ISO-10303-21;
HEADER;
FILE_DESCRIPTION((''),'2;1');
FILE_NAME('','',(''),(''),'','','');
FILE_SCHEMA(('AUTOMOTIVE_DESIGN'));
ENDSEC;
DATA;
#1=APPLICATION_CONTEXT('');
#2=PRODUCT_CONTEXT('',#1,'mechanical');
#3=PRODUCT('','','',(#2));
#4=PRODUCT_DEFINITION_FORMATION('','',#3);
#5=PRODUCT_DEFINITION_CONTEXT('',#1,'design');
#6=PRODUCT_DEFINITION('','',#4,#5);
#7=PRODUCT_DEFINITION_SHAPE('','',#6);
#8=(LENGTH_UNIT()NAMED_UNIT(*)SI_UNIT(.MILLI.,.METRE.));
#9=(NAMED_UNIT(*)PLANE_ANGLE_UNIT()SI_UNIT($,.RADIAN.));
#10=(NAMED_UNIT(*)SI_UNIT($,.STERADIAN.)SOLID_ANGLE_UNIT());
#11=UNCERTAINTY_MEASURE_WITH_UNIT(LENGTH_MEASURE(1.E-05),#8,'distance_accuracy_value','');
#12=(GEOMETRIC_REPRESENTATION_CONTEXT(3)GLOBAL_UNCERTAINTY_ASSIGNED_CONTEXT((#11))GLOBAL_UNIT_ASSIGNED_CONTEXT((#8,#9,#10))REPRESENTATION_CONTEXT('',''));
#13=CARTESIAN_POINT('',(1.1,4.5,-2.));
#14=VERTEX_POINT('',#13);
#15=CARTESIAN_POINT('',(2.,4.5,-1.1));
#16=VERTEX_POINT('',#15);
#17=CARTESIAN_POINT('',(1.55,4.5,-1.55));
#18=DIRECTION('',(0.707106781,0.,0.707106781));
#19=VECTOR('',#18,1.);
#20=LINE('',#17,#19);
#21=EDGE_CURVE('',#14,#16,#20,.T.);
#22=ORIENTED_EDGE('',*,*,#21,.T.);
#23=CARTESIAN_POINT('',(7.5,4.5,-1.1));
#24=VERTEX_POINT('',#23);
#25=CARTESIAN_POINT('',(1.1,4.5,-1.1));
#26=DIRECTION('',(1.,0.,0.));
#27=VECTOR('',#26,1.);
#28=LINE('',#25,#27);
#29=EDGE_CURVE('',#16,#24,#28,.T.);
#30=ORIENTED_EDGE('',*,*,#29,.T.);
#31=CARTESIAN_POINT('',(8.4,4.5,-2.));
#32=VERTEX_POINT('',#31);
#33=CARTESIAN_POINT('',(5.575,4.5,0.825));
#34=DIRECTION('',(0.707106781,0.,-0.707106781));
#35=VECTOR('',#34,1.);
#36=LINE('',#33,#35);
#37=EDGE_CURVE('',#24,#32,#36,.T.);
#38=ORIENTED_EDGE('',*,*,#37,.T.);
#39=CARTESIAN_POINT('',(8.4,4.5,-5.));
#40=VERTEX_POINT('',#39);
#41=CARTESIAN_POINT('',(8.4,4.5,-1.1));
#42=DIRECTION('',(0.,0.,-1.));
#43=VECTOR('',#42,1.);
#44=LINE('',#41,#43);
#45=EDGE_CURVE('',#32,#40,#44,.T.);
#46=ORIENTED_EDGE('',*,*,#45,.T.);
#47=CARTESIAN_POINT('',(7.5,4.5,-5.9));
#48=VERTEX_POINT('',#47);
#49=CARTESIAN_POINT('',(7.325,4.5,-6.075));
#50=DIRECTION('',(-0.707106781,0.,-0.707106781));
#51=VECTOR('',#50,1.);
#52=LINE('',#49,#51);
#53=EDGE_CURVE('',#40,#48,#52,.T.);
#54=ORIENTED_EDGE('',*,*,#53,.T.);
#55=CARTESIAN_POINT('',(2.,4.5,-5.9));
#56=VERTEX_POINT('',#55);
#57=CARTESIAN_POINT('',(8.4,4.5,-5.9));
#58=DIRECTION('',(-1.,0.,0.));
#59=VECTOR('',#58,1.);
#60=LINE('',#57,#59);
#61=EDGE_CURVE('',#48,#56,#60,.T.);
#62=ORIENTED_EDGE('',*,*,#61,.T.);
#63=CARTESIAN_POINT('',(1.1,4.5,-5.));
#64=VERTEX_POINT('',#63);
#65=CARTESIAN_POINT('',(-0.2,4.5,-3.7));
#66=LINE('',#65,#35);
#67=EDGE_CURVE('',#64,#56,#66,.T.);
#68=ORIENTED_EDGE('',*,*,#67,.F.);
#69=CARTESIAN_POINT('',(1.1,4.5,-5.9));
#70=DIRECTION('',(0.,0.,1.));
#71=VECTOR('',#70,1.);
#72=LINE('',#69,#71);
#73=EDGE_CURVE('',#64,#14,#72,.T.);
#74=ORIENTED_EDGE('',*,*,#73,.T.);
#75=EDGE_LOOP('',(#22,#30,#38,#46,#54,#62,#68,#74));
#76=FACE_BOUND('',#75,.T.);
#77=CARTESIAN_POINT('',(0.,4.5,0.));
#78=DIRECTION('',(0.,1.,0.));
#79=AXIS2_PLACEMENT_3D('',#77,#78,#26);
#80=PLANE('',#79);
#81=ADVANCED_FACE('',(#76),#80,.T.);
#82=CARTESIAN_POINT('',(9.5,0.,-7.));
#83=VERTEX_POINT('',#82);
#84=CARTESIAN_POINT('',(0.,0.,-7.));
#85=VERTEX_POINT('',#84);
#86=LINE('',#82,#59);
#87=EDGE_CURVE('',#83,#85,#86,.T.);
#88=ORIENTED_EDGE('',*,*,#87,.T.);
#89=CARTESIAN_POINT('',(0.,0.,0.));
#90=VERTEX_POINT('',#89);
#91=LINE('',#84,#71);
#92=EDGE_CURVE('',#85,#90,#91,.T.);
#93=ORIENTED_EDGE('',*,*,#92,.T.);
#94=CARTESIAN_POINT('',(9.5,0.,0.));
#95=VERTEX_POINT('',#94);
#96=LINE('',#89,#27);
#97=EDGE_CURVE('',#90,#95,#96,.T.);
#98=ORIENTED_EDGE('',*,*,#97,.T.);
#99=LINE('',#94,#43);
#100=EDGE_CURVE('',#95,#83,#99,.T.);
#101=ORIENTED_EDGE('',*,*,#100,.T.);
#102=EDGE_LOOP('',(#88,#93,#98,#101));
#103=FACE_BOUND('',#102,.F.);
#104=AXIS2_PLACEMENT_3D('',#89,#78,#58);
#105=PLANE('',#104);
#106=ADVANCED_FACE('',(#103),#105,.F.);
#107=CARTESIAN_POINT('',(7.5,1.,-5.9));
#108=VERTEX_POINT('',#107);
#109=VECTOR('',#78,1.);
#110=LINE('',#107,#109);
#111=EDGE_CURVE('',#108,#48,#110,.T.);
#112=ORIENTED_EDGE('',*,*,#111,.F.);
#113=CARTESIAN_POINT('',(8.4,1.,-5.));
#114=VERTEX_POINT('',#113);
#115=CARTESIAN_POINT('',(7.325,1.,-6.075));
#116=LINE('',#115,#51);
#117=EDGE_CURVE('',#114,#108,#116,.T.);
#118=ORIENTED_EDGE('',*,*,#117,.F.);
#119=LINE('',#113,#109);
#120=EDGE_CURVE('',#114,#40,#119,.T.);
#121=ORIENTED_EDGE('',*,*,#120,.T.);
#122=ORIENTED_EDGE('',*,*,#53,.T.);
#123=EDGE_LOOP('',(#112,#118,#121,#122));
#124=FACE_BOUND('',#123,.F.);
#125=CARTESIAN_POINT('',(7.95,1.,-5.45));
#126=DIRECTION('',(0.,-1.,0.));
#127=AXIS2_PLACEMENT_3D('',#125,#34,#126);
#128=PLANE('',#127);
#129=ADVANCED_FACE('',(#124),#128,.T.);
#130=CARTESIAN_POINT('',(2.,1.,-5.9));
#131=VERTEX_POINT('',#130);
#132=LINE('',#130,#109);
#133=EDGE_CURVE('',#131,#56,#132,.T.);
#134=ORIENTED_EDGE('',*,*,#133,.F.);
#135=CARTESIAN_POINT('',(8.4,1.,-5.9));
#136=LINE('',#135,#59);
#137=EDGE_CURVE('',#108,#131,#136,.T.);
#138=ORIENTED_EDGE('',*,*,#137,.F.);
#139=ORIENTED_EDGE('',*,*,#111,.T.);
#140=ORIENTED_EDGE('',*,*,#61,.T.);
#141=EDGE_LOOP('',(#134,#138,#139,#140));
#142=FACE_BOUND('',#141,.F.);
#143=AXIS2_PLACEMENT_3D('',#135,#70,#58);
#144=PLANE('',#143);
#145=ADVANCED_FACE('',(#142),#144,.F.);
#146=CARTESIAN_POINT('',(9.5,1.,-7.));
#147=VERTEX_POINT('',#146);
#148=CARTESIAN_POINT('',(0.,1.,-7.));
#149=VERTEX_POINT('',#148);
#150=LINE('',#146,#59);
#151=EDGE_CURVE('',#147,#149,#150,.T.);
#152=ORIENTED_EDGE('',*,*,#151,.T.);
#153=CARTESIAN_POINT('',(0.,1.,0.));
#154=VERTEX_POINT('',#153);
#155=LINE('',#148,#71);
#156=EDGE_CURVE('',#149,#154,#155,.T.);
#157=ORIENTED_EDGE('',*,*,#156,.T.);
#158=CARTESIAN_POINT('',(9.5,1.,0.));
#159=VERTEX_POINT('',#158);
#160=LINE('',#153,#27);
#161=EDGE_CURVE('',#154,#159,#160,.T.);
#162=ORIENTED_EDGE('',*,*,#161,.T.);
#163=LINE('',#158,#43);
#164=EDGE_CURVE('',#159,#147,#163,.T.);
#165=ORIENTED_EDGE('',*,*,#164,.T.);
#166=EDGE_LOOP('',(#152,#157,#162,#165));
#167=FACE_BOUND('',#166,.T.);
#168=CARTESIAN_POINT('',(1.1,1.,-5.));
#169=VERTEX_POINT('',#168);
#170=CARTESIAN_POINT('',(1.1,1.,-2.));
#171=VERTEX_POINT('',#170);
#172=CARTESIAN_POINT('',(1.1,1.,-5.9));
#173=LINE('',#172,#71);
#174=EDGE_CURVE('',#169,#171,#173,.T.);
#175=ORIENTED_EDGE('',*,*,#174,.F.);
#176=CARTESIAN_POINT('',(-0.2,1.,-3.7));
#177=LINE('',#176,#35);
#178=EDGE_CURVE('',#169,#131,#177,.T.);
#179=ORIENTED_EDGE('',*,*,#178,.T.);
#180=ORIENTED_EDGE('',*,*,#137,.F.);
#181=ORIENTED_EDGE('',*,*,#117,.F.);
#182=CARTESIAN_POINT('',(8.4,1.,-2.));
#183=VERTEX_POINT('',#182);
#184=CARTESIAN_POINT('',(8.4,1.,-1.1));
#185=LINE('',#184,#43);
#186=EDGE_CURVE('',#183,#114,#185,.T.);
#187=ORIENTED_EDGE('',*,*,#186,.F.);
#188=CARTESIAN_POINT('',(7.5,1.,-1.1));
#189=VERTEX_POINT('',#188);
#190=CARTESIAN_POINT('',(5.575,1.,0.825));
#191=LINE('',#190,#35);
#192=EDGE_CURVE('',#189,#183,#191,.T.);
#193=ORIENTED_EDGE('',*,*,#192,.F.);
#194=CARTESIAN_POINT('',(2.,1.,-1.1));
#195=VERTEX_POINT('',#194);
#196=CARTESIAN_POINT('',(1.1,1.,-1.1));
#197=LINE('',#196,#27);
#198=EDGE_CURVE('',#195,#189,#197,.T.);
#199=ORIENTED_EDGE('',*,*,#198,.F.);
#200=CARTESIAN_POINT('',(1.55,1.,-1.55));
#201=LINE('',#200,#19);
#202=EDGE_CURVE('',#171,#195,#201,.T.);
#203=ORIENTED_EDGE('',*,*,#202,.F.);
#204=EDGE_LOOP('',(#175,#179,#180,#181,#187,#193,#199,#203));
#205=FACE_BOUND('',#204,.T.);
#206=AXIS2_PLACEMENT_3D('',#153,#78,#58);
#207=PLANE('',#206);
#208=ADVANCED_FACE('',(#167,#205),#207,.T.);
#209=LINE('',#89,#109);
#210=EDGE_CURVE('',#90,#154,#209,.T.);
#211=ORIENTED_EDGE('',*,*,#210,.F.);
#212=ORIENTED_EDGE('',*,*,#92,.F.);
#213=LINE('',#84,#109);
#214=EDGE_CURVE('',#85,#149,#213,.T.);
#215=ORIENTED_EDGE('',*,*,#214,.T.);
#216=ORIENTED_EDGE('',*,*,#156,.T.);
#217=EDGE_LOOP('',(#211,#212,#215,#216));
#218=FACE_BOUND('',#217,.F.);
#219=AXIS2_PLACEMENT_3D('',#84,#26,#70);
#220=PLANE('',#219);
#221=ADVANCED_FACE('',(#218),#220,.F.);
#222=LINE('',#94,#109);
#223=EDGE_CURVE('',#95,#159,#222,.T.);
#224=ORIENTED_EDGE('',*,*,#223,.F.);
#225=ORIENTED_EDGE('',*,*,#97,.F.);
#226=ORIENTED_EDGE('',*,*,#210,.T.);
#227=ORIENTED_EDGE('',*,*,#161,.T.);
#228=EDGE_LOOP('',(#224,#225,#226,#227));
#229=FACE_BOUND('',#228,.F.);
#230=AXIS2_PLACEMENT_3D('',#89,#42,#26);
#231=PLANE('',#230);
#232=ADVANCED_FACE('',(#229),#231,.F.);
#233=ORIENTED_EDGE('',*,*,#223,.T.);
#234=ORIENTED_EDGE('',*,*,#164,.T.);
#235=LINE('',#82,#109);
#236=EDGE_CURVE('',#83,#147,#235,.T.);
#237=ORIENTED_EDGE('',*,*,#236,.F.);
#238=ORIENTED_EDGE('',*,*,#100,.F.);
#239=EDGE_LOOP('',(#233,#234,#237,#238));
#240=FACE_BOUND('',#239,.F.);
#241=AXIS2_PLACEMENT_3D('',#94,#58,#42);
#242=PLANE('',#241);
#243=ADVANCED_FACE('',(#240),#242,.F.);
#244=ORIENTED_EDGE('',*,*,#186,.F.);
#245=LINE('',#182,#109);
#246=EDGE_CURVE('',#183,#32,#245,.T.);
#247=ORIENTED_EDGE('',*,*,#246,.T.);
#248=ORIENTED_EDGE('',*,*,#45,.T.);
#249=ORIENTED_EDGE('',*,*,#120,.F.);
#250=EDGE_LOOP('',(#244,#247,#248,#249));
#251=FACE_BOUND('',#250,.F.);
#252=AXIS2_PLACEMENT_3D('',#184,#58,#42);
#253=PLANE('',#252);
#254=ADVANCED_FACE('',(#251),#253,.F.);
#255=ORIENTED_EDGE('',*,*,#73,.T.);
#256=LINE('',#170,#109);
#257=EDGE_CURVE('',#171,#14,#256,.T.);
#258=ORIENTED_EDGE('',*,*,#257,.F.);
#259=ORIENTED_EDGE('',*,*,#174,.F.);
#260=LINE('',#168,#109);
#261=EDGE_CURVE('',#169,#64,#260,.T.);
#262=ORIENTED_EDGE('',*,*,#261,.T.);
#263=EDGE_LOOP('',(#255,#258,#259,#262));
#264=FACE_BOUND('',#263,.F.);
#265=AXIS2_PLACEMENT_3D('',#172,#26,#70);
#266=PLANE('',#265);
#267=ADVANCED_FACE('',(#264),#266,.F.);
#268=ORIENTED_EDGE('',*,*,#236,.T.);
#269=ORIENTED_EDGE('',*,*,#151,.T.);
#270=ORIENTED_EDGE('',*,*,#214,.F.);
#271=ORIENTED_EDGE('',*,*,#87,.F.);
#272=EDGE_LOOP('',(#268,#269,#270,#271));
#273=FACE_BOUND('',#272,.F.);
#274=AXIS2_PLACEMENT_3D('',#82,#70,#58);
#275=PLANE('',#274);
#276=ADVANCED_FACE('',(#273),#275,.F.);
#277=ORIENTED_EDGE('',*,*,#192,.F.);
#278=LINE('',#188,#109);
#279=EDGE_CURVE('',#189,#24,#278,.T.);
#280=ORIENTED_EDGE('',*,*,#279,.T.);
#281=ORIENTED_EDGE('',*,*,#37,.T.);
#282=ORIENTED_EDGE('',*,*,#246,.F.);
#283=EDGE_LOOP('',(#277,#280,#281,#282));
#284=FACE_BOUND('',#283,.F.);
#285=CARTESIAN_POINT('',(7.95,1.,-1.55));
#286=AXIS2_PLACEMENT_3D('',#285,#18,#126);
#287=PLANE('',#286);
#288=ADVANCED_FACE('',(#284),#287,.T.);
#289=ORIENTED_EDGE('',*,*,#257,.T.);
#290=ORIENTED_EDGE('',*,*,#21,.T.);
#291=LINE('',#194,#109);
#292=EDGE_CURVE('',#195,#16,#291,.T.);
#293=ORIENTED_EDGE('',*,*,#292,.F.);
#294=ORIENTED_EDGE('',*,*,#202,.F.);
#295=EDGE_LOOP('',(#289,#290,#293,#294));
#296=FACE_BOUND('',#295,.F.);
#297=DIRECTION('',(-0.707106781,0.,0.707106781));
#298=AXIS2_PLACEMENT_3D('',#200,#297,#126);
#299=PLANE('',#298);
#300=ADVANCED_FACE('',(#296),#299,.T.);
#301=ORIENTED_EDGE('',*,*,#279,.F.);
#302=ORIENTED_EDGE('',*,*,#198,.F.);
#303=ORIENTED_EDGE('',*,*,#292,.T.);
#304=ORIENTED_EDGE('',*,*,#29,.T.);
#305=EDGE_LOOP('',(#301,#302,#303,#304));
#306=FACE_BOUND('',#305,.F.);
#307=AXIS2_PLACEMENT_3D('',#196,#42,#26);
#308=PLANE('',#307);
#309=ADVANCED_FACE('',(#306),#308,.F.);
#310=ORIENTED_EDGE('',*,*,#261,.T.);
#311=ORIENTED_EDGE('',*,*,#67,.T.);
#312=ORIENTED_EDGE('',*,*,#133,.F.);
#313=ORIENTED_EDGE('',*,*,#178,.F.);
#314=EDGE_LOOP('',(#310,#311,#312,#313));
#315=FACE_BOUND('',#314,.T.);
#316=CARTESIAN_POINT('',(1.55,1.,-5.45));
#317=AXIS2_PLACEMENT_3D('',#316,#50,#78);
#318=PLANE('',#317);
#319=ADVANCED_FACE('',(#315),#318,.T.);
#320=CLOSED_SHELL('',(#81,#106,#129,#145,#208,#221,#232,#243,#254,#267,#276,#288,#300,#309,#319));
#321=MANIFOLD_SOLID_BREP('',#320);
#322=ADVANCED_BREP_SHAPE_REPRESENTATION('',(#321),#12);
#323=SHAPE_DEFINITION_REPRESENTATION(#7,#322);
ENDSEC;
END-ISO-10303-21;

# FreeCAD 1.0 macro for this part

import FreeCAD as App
import Part
import Sketcher
from FreeCAD import Vector


def edges_at(feature, points):
    """Names of the edges that pass closest to the given points."""
    edges = feature.Shape.Edges
    near = lambda p: min(range(len(edges)), key=lambda i: edges[i].distToShape(Part.Vertex(*p))[0])
    return sorted({f"Edge{near(p) + 1}" for p in points})

doc = App.newDocument("Part")
body = doc.addObject("PartDesign::Body", "Body")

# Sketch on XZ plane
sketch1 = body.newObject("Sketcher::SketchObject", "Sketch")
sketch1.AttachmentSupport = (doc.getObject("XZ_Plane"), [""])
sketch1.MapMode = "FlatFace"
sketch1.addGeometry(Part.LineSegment(Vector(0, -7, 0), Vector(0, 0, 0)), False)
sketch1.addGeometry(Part.LineSegment(Vector(0, 0, 0), Vector(9.5, 0, 0)), False)
sketch1.addGeometry(Part.LineSegment(Vector(9.5, 0, 0), Vector(9.5, -7, 0)), False)
sketch1.addGeometry(Part.LineSegment(Vector(9.5, -7, 0), Vector(0, -7, 0)), False)
sketch1.addConstraint(Sketcher.Constraint("Coincident", 0, 2, 1, 1))
sketch1.addConstraint(Sketcher.Constraint("Coincident", 1, 2, 2, 1))
sketch1.addConstraint(Sketcher.Constraint("Coincident", 2, 2, 3, 1))
sketch1.addConstraint(Sketcher.Constraint("Coincident", 3, 2, 0, 1))
sketch1.addConstraint(Sketcher.Constraint("Vertical", 0))
sketch1.addConstraint(Sketcher.Constraint("Horizontal", 1))
sketch1.addConstraint(Sketcher.Constraint("Vertical", 2))
sketch1.addConstraint(Sketcher.Constraint("Horizontal", 3))
sketch1.addConstraint(Sketcher.Constraint("Coincident", 0, 2, -1, 1))
sketch1.addConstraint(Sketcher.Constraint("DistanceY", 0, 1, 0, 2, 7.0))
sketch1.addConstraint(Sketcher.Constraint("DistanceX", 1, 1, 1, 2, 9.5))
pad1 = body.newObject("PartDesign::Pad", "Pad")
pad1.Profile = sketch1
pad1.Length = 1
pad1.Reversed = True

# Sketch on XZ plane
sketch2 = body.newObject("Sketcher::SketchObject", "Sketch001")
sketch2.AttachmentSupport = (doc.getObject("XZ_Plane"), [""])
sketch2.MapMode = "FlatFace"
sketch2.AttachmentOffset = App.Placement(Vector(0, 0, -1), App.Rotation())
sketch2.addGeometry(Part.LineSegment(Vector(1.1, -5.9, 0), Vector(1.1, -1.1, 0)), False)
sketch2.addGeometry(Part.LineSegment(Vector(1.1, -1.1, 0), Vector(8.4, -1.1, 0)), False)
sketch2.addGeometry(Part.LineSegment(Vector(8.4, -1.1, 0), Vector(8.4, -5.9, 0)), False)
sketch2.addGeometry(Part.LineSegment(Vector(8.4, -5.9, 0), Vector(1.1, -5.9, 0)), False)
sketch2.addConstraint(Sketcher.Constraint("Coincident", 0, 2, 1, 1))
sketch2.addConstraint(Sketcher.Constraint("Coincident", 1, 2, 2, 1))
sketch2.addConstraint(Sketcher.Constraint("Coincident", 2, 2, 3, 1))
sketch2.addConstraint(Sketcher.Constraint("Coincident", 3, 2, 0, 1))
sketch2.addConstraint(Sketcher.Constraint("Vertical", 0))
sketch2.addConstraint(Sketcher.Constraint("Horizontal", 1))
sketch2.addConstraint(Sketcher.Constraint("Vertical", 2))
sketch2.addConstraint(Sketcher.Constraint("Horizontal", 3))
sketch2.addConstraint(Sketcher.Constraint("DistanceX", 1, 1, 1, 2, 7.3))
sketch2.addConstraint(Sketcher.Constraint("DistanceY", 0, 1, 0, 2, 4.8))
sketch2.addConstraint(Sketcher.Constraint("DistanceX", -1, 1, 0, 2, 1.1))
sketch2.addConstraint(Sketcher.Constraint("DistanceY", 0, 2, -1, 1, 1.1))
pad2 = body.newObject("PartDesign::Pad", "Pad001")
pad2.Profile = sketch2
pad2.Length = 3.5
pad2.Reversed = True
doc.recompute()

chamfer = body.newObject("PartDesign::Chamfer", "Chamfer")
chamfer.Base = (pad2, edges_at(pad2, [
    (1.1, 2.75, -5.9),
    (1.1, 2.75, -1.1),
    (8.4, 2.75, -1.1),
    (8.4, 2.75, -5.9),
]))
chamfer.Size = 0.9

doc.recompute()
